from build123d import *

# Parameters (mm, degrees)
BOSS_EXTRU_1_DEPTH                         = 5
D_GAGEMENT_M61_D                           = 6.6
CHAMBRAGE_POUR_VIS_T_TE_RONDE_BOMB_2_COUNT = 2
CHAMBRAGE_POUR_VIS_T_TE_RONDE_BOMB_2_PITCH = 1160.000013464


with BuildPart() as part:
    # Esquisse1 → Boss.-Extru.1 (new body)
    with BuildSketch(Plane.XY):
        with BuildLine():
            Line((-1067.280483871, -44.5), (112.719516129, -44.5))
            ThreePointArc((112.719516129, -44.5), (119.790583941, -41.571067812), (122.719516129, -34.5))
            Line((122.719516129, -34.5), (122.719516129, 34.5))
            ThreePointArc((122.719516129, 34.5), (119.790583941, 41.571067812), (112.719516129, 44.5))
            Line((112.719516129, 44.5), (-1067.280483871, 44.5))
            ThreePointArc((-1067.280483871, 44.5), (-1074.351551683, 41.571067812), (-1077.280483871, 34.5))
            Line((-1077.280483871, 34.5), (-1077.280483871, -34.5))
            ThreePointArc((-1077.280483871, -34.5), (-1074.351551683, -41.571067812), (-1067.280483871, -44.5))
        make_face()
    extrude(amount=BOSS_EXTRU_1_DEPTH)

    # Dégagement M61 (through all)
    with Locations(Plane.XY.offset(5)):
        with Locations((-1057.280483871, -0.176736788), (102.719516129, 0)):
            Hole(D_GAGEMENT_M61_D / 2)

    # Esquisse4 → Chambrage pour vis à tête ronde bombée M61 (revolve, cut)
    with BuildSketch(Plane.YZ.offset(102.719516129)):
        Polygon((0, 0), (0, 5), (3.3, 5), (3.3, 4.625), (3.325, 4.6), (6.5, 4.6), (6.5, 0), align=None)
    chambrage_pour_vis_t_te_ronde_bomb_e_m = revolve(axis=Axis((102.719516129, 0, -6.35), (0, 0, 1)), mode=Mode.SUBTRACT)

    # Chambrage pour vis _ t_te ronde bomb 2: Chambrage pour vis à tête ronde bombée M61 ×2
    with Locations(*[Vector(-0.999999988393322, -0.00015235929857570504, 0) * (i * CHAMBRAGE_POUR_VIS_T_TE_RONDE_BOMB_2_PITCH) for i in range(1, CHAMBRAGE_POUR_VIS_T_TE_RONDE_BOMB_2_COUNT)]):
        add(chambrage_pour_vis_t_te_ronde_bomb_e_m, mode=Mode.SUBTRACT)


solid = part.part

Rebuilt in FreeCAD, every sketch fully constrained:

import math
import FreeCAD as App
import Part
import Sketcher

V = App.Vector
Q = App.Units.Quantity

doc = App.newDocument("Part")
params = doc.addObject("Spreadsheet::Sheet", "Params")
for row, (alias, value) in enumerate([
    ("sketch1_radius", "10 mm"),
    ("sketch1_width", "1180 mm"),
    ("sketch1_height", "69 mm"),
    ("pad1_length", "5 mm"),
    ("sketch2_diameter", "6.6 mm"),
    ("hole_diameter", "6.6 mm"),
    ("sketch3_height", "5 mm"),
    ("sketch3_width", "6.5 mm"),
    ("sketch3_width2", "3.3 mm"),
    ("sketch3_height2", "4.6 mm"),
    ("groove_angle", "360 deg"),
    ("linearpattern_pitch", "1160.000013 mm"),
], start=1):
    params.set(f"A{row}", alias)
    params.set(f"B{row}", "=" + value)
    params.setAlias(f"B{row}", alias)

body = doc.addObject("PartDesign::Body", "Body")

sketch1 = body.newObject("Sketcher::SketchObject", "Sketch")
sketch1.AttachmentSupport = (doc.getObject("XY_Plane"), [""])
sketch1.MapMode = "FlatFace"
sketch1.addGeometry([
    Part.LineSegment(V(-1067.280484, -44.5, 0), V(112.719516, -44.5, 0)),
    Part.ArcOfCircle(Part.Circle(V(112.719516, -34.5, 0), V(0, 0, 1), 10), math.radians(-90), math.radians(0)),
    Part.LineSegment(V(122.719516, -34.5, 0), V(122.719516, 34.5, 0)),
    Part.ArcOfCircle(Part.Circle(V(112.719516, 34.5, 0), V(0, 0, 1), 10), math.radians(0), math.radians(90)),
    Part.LineSegment(V(112.719516, 44.5, 0), V(-1067.280484, 44.5, 0)),
    Part.ArcOfCircle(Part.Circle(V(-1067.280484, 34.5, 0), V(0, 0, 1), 10), math.radians(90), math.radians(180)),
    Part.LineSegment(V(-1077.280484, 34.5, 0), V(-1077.280484, -34.5, 0)),
    Part.ArcOfCircle(Part.Circle(V(-1067.280484, -34.5, 0), V(0, 0, 1), 10), math.radians(180), math.radians(270)),
], False)
sketch1.addConstraint([
    Sketcher.Constraint("Tangent", 0, 2, 1, 1),
    Sketcher.Constraint("Tangent", 1, 2, 2, 1),
    Sketcher.Constraint("Tangent", 2, 2, 3, 1),
    Sketcher.Constraint("Tangent", 3, 2, 4, 1),
    Sketcher.Constraint("Tangent", 4, 2, 5, 1),
    Sketcher.Constraint("Tangent", 5, 2, 6, 1),
    Sketcher.Constraint("Tangent", 6, 2, 7, 1),
    Sketcher.Constraint("Tangent", 7, 2, 0, 1),
    Sketcher.Constraint("Horizontal", 0),
    Sketcher.Constraint("Vertical", 2),
    Sketcher.Constraint("Horizontal", 4),
    Sketcher.Constraint("Vertical", 6),
    Sketcher.Constraint("Equal", 1, 3),
    Sketcher.Constraint("Equal", 3, 5),
    Sketcher.Constraint("Equal", 5, 7),
    Sketcher.Constraint("Radius", 1, Q("10 mm")),
    Sketcher.Constraint("DistanceX", 0, 1, 0, 2, Q("1180 mm")),
    Sketcher.Constraint("DistanceY", 2, 1, 2, 2, Q("69 mm")),
    Sketcher.Constraint("DistanceY", 1, 3, -1, 1, Q("34.5 mm")),
    Sketcher.Constraint("DistanceX", -1, 1, 1, 3, Q("112.719516 mm")),
])
sketch1.setExpression("Constraints[15]", "Params.sketch1_radius")
sketch1.setExpression("Constraints[16]", "Params.sketch1_width")
sketch1.setExpression("Constraints[17]", "Params.sketch1_height")
pad1 = body.newObject("PartDesign::Pad", "Pad")
pad1.Profile = sketch1
pad1.setExpression("Length", "Params.pad1_length")

sketch2 = body.newObject("Sketcher::SketchObject", "Sketch001")
sketch2.AttachmentSupport = (doc.getObject("XY_Plane"), [""])
sketch2.MapMode = "FlatFace"
sketch2.AttachmentOffset = App.Placement(V(0, 0, 5), App.Rotation())
sketch2.addGeometry([
    Part.Circle(V(-1057.280484, -0.176737, 0), V(0, 0, 1), 3.3),
    Part.Circle(V(102.719516, 0, 0), V(0, 0, 1), 3.3),
], False)
sketch2.addConstraint([
    Sketcher.Constraint("Equal", 0, 1),
    Sketcher.Constraint("PointOnObject", 1, 3, -1),
    Sketcher.Constraint("Diameter", 0, Q("6.6 mm")),
    Sketcher.Constraint("DistanceX", 0, 3, 1, 3, Q("1160 mm")),
    Sketcher.Constraint("DistanceX", 0, 3, -1, 1, Q("1057.280484 mm")),
    Sketcher.Constraint("DistanceY", 0, 3, -1, 1, Q("0.176737 mm")),
])
sketch2.setExpression("Constraints[2]", "Params.sketch2_diameter")
doc.recompute()
hole = body.newObject("PartDesign::Hole", "Hole")
hole.Profile = sketch2
hole.ThreadType = "None"
hole.setExpression("Diameter", "Params.hole_diameter")
hole.DepthType = "ThroughAll"

sketch3 = body.newObject("Sketcher::SketchObject", "Sketch002")
sketch3.AttachmentSupport = (doc.getObject("YZ_Plane"), [""])
sketch3.MapMode = "FlatFace"
sketch3.AttachmentOffset = App.Placement(V(0, 0, 102.719516), App.Rotation())
sketch3.addGeometry([
    Part.LineSegment(V(0, 5, 0), V(0, 0, 0)),
    Part.LineSegment(V(0, 0, 0), V(6.5, 0, 0)),
    Part.LineSegment(V(6.5, 0, 0), V(6.5, 4.6, 0)),
    Part.LineSegment(V(6.5, 4.6, 0), V(3.325, 4.6, 0)),
    Part.LineSegment(V(3.325, 4.6, 0), V(3.3, 4.625, 0)),
    Part.LineSegment(V(3.3, 4.625, 0), V(3.3, 5, 0)),
    Part.LineSegment(V(3.3, 5, 0), V(0, 5, 0)),
], False)
sketch3.addConstraint([
    Sketcher.Constraint("Coincident", 0, 2, 1, 1),
    Sketcher.Constraint("Coincident", 1, 2, 2, 1),
    Sketcher.Constraint("Coincident", 2, 2, 3, 1),
    Sketcher.Constraint("Coincident", 3, 2, 4, 1),
    Sketcher.Constraint("Coincident", 4, 2, 5, 1),
    Sketcher.Constraint("Coincident", 5, 2, 6, 1),
    Sketcher.Constraint("Coincident", 6, 2, 0, 1),
    Sketcher.Constraint("Vertical", 0),
    Sketcher.Constraint("Horizontal", 1),
    Sketcher.Constraint("Vertical", 2),
    Sketcher.Constraint("Horizontal", 3),
    Sketcher.Constraint("Vertical", 5),
    Sketcher.Constraint("Horizontal", 6),
    Sketcher.Constraint("Coincident", 0, 2, -1, 1),
    Sketcher.Constraint("DistanceY", 0, 2, 0, 1, Q("5 mm")),
    Sketcher.Constraint("Angle", 4, Q("135 deg")),
    Sketcher.Constraint("DistanceX", 1, 1, 1, 2, Q("6.5 mm")),
    Sketcher.Constraint("DistanceX", 6, 2, 6, 1, Q("3.3 mm")),
    Sketcher.Constraint("DistanceY", 2, 1, 2, 2, Q("4.6 mm")),
    Sketcher.Constraint("DistanceX", 3, 2, 3, 1, Q("3.175 mm")),
])
sketch3.setExpression("Constraints[14]", "Params.sketch3_height")
sketch3.setExpression("Constraints[16]", "Params.sketch3_width")
sketch3.setExpression("Constraints[17]", "Params.sketch3_width2")
sketch3.setExpression("Constraints[18]", "Params.sketch3_height2")
groove = body.newObject("PartDesign::Groove", "Groove")
groove.Profile = sketch3
groove.ReferenceAxis = (sketch3, ["V_Axis"])
groove.setExpression("Angle", "Params.groove_angle")
doc.recompute()

datumline = body.newObject("PartDesign::Line", "DatumLine")
datumline.Placement = App.Placement(V(0, 0, 0), App.Rotation(V(0, 0, 1), V(-0.999999988, -0.000152359, 0)))
linearpattern = body.newObject("PartDesign::LinearPattern", "LinearPattern")
linearpattern.Originals = [groove]
linearpattern.Direction = (datumline, [""])
linearpattern.Mode = "offset"
linearpattern.setExpression("Offset", "Params.linearpattern_pitch")
linearpattern.Occurrences = 2
body.Tip = linearpattern

doc.recompute()
